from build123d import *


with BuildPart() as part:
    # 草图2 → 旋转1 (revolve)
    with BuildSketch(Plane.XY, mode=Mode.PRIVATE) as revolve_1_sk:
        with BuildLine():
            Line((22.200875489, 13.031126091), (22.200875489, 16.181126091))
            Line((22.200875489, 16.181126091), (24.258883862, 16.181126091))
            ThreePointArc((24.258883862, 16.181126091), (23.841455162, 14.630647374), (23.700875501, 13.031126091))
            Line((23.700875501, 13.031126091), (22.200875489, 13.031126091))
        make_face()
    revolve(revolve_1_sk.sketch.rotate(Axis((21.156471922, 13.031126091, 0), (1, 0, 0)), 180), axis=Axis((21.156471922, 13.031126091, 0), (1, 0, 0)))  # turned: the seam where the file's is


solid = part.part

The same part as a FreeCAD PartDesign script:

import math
import FreeCAD as App
import Part
import Sketcher
from FreeCAD import Vector
Q = App.Units.Quantity

doc = App.newDocument("Part")
body = doc.addObject("PartDesign::Body", "Body")

sketch1 = body.newObject("Sketcher::SketchObject", "Sketch")
sketch1.AttachmentSupport = (doc.getObject("XY_Plane"), [""])
sketch1.MapMode = "FlatFace"
sketch1.addGeometry([
    Part.LineSegment(Vector(22.2, 16.2, 0), Vector(22.2, 13, 0)),
    Part.LineSegment(Vector(22.2, 13, 0), Vector(23.7, 13, 0)),
    Part.ArcOfCircle(Part.Circle(Vector(32.9, 13, 0), Vector(0, 0, 1), 9.2), math.radians(160), math.radians(180)),
    Part.LineSegment(Vector(24.3, 16.2, 0), Vector(22.2, 16.2, 0)),
], False)
sketch1.addGeometry(Part.LineSegment(Vector(22.2, 13, 0), Vector(32.9, 13, 0)), True)
sketch1.addConstraint([
    Sketcher.Constraint("Coincident", 0, 2, 1, 1),
    Sketcher.Constraint("Coincident", 1, 2, 2, 2),
    Sketcher.Constraint("Coincident", 2, 1, 3, 1),
    Sketcher.Constraint("Coincident", 3, 2, 0, 1),
    Sketcher.Constraint("Vertical", 0),
    Sketcher.Constraint("Horizontal", 1),
    Sketcher.Constraint("Horizontal", 3),
    Sketcher.Constraint("Horizontal", 4),
    Sketcher.Constraint("Coincident", 4, 1, 0, 2),
    Sketcher.Constraint("Coincident", 4, 2, 2, 3),
    Sketcher.Constraint("Radius", 2, Q("9.17 mm")),
    Sketcher.Constraint("DistanceX", 1, 1, 1, 2, Q("1.5 mm")),
    Sketcher.Constraint("DistanceY", 0, 2, 0, 1, Q("3.15 mm")),
    Sketcher.Constraint("DistanceX", -1, 1, 2, 3, Q("32.870876 mm")),
    Sketcher.Constraint("DistanceY", -1, 1, 2, 3, Q("13.031126 mm")),
])
revolution = body.newObject("PartDesign::Revolution", "Revolution")
revolution.Profile = sketch1
revolution.ReferenceAxis = (sketch1, ["Axis0"])
revolution.Angle = 360

doc.recompute()
